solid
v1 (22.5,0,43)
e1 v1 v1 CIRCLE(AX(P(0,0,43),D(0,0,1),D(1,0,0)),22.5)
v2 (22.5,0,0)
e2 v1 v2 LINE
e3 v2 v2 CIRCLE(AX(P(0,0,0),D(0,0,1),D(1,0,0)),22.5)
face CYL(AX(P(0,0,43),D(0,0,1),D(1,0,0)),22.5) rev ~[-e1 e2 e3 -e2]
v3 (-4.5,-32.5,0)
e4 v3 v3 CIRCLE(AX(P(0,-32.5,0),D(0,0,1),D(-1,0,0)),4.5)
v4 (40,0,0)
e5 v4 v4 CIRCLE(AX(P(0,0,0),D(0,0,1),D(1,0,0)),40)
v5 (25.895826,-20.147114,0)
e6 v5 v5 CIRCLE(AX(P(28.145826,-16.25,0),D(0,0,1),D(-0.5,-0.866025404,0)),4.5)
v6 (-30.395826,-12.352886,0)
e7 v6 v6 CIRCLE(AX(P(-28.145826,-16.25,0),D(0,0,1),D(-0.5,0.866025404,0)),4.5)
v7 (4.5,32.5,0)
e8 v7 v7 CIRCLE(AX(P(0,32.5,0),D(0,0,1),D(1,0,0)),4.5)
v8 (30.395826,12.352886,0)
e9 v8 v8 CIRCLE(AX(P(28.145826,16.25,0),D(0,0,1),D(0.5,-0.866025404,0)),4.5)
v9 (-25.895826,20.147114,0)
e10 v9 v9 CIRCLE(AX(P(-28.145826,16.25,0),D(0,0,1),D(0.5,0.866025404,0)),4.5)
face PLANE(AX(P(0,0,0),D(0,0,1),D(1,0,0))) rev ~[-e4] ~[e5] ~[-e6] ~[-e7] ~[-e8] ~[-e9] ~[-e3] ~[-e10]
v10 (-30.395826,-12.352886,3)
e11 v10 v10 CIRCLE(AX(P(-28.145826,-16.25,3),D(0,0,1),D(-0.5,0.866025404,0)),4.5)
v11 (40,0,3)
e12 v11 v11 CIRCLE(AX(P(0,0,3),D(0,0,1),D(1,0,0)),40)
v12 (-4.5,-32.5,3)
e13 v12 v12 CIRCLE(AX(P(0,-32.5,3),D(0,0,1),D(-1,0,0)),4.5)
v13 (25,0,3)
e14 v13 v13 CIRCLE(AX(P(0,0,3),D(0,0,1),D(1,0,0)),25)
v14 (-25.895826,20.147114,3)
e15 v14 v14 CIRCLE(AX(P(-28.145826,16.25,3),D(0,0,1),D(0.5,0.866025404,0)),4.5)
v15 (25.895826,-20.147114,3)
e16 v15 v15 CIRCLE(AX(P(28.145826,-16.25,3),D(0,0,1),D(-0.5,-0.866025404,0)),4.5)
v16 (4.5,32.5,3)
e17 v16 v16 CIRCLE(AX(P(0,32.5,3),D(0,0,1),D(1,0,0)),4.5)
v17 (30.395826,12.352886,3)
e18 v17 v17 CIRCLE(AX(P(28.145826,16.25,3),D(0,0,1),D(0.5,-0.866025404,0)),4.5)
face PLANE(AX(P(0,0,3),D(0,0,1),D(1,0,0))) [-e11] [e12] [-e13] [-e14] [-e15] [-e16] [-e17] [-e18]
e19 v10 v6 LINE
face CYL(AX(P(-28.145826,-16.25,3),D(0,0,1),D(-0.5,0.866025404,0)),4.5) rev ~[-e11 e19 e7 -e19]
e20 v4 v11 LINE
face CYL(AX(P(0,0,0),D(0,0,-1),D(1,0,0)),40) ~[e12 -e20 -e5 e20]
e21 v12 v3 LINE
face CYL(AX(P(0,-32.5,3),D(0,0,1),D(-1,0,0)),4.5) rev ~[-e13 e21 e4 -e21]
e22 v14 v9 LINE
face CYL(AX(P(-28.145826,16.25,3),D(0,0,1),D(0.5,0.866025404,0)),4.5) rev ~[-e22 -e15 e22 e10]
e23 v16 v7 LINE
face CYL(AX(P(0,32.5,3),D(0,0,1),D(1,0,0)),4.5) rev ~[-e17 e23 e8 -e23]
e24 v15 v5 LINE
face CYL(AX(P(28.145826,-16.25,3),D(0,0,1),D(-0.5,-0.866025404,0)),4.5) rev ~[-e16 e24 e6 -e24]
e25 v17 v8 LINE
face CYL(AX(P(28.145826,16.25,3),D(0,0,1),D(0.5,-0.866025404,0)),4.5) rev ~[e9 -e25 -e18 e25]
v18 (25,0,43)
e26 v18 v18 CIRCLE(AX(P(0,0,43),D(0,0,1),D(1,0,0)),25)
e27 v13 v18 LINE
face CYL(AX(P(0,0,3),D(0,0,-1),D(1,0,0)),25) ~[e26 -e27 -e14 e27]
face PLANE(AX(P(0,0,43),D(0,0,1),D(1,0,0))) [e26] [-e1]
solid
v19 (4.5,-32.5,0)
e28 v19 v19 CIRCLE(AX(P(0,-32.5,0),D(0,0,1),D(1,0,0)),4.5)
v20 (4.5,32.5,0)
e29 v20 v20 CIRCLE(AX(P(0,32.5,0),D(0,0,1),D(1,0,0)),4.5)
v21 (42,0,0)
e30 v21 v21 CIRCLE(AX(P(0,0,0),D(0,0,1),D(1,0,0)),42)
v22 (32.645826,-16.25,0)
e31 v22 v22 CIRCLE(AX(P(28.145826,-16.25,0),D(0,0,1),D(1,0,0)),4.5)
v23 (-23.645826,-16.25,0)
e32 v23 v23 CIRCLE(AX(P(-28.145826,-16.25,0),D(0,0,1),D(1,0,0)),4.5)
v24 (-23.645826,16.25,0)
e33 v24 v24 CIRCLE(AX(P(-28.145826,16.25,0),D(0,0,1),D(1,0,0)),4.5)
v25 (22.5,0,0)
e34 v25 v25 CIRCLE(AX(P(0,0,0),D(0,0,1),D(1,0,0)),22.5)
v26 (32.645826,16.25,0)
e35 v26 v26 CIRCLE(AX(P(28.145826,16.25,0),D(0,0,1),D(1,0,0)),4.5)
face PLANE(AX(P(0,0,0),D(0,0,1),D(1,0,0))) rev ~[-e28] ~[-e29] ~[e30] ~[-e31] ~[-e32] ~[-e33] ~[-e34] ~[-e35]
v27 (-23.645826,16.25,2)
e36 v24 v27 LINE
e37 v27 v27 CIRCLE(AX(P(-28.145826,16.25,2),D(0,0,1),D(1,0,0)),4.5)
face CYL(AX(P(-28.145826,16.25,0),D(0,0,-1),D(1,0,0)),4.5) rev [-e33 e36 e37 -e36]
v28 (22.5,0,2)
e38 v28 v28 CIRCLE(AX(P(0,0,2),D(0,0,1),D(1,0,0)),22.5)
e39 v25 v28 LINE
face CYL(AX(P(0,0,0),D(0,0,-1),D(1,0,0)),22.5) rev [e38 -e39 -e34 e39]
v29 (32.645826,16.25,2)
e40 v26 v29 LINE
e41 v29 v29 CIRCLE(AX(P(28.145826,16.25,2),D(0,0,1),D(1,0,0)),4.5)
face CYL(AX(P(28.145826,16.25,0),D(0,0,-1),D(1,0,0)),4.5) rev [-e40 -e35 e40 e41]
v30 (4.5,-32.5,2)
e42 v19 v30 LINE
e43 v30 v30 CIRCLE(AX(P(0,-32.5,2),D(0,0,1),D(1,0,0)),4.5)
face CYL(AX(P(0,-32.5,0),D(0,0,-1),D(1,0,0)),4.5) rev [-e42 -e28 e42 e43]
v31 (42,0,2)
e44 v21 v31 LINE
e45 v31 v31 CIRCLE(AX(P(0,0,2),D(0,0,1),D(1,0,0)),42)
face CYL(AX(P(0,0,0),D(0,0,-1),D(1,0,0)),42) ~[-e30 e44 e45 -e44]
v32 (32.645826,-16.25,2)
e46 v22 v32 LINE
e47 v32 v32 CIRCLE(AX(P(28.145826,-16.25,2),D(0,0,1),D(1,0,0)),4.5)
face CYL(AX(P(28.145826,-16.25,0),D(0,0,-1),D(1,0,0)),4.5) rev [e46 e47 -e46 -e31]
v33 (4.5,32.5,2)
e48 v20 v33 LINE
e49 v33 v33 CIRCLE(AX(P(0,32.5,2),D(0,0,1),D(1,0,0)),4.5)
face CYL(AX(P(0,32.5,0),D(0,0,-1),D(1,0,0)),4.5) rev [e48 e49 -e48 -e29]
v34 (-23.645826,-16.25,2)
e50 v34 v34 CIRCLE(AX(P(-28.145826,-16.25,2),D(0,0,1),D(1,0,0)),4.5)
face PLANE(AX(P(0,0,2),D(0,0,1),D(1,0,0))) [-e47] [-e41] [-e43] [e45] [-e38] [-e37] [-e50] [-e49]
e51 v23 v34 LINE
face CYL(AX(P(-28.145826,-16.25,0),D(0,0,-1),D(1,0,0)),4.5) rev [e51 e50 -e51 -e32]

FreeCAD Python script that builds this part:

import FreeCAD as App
import Part
import Sketcher

doc = App.newDocument("Part")
params = doc.addObject("Spreadsheet::Sheet", "Params")
for row, (alias, value) in enumerate([
    ("sketch1_diameter", "80 mm"),
    ("pad1_length", "3 mm"),
    ("sketch2_diameter", "50 mm"),
    ("pad2_length", "40 mm"),
    ("sketch3_diameter", "45 mm"),
    ("sketch4_diameter", "9 mm"),
    ("sketch5_diameter", "84 mm"),
    ("sketch5_diameter2", "9 mm"),
    ("sketch5_diameter3", "45 mm"),
    ("pad3_length", "2 mm"),
], start=1):
    params.set(f"A{row}", alias)
    params.set(f"B{row}", "=" + value)
    params.setAlias(f"B{row}", alias)

body = doc.addObject("PartDesign::Body", "Body")

sketch1 = doc.addObject("Sketcher::SketchObject", "Sketch")
body.addObject(sketch1)
sketch1.AttachmentSupport = (doc.XY_Plane, [""])
sketch1.MapMode = "FlatFace"
sketch1.addGeometry(Part.Circle(App.Vector(0, 0, 0), App.Vector(0, 0, 1), 40), False)
sketch1.addConstraint([
    Sketcher.Constraint("Coincident", 0, 3, -1, 1),
    Sketcher.Constraint("Diameter", 0, 80.0),
])
sketch1.setExpression("Constraints[1]", "Params.sketch1_diameter")
pad1 = doc.addObject("PartDesign::Pad", "Pad")
body.addObject(pad1)
pad1.Profile = sketch1
pad1.setExpression("Length", "Params.pad1_length")

sketch2 = doc.addObject("Sketcher::SketchObject", "Sketch001")
body.addObject(sketch2)
sketch2.AttachmentSupport = (doc.XY_Plane, [""])
sketch2.MapMode = "FlatFace"
sketch2.AttachmentOffset = App.Placement(App.Vector(0, 0, 3), App.Rotation())
sketch2.addGeometry(Part.Circle(App.Vector(0, 0, 0), App.Vector(0, 0, 1), 25), False)
sketch2.addConstraint([
    Sketcher.Constraint("Coincident", 0, 3, -1, 1),
    Sketcher.Constraint("Diameter", 0, 50.0),
])
sketch2.setExpression("Constraints[1]", "Params.sketch2_diameter")
pad2 = doc.addObject("PartDesign::Pad", "Pad001")
body.addObject(pad2)
pad2.Profile = sketch2
pad2.setExpression("Length", "Params.pad2_length")

sketch3 = doc.addObject("Sketcher::SketchObject", "Sketch002")
body.addObject(sketch3)
sketch3.AttachmentSupport = (doc.XY_Plane, [""])
sketch3.MapMode = "FlatFace"
sketch3.AttachmentOffset = App.Placement(App.Vector(0, 0, 43), App.Rotation())
sketch3.addGeometry(Part.Circle(App.Vector(0, 0, 0), App.Vector(0, 0, 1), 22), False)
sketch3.addConstraint([
    Sketcher.Constraint("Coincident", 0, 3, -1, 1),
    Sketcher.Constraint("Diameter", 0, 45.0),
])
sketch3.setExpression("Constraints[1]", "Params.sketch3_diameter")
pocket1 = doc.addObject("PartDesign::Pocket", "Pocket")
body.addObject(pocket1)
pocket1.Profile = sketch3
pocket1.Type = "ThroughAll"

sketch4 = doc.addObject("Sketcher::SketchObject", "Sketch003")
body.addObject(sketch4)
sketch4.AttachmentSupport = (doc.XY_Plane, [""])
sketch4.MapMode = "FlatFace"
sketch4.AttachmentOffset = App.Placement(App.Vector(0, 0, 3), App.Rotation())
sketch4.addGeometry(Part.Circle(App.Vector(0, 32.5, 0), App.Vector(0, 0, 1), 4.5), False)
sketch4.addConstraint([
    Sketcher.Constraint("PointOnObject", 0, 3, -2),
    Sketcher.Constraint("Diameter", 0, 9.0),
    Sketcher.Constraint("DistanceY", -1, 1, 0, 3, 32.5),
])
sketch4.setExpression("Constraints[1]", "Params.sketch4_diameter")
pocket2 = doc.addObject("PartDesign::Pocket", "Pocket001")
body.addObject(pocket2)
pocket2.Profile = sketch4
pocket2.Type = "ThroughAll"
doc.recompute()

polarpattern = doc.addObject("PartDesign::PolarPattern", "PolarPattern")
body.addObject(polarpattern)
polarpattern.Originals = [pocket2]
polarpattern.Axis = (doc.Z_Axis, [""])
polarpattern.Angle = 360
polarpattern.Occurrences = 6
body.Tip = polarpattern
body2 = doc.addObject("PartDesign::Body", "Body001")

sketch5 = doc.addObject("Sketcher::SketchObject", "Sketch004")
body2.addObject(sketch5)
sketch5.AttachmentSupport = (doc.getObject("XY_Plane001"), [""])
sketch5.MapMode = "FlatFace"
sketch5.addGeometry([
    Part.Circle(App.Vector(0, 0, 0), App.Vector(0, 0, 1), 42),
    Part.Circle(App.Vector(-28.1, -16.2, 0), App.Vector(0, 0, 1), 4.5),
    Part.Circle(App.Vector(0, -32.5, 0), App.Vector(0, 0, 1), 4.5),
    Part.Circle(App.Vector(28.1, -16.2, 0), App.Vector(0, 0, 1), 4.5),
    Part.Circle(App.Vector(-28.1, 16.2, 0), App.Vector(0, 0, 1), 4.5),
    Part.Circle(App.Vector(0, 0, 0), App.Vector(0, 0, 1), 22.5),
    Part.Circle(App.Vector(28.1, 16.2, 0), App.Vector(0, 0, 1), 4.5),
    Part.Circle(App.Vector(0, 32.5, 0), App.Vector(0, 0, 1), 4.5),
], False)
sketch5.addConstraint([
    Sketcher.Constraint("Coincident", 0, 3, -1, 1),
    Sketcher.Constraint("Coincident", 5, 3, -1, 1),
    Sketcher.Constraint("Equal", 1, 2),
    Sketcher.Constraint("Equal", 2, 3),
    Sketcher.Constraint("Equal", 3, 4),
    Sketcher.Constraint("Equal", 4, 6),
    Sketcher.Constraint("Equal", 6, 7),
    Sketcher.Constraint("Symmetric", 3, 3, 4, 3, -1, 1),
    Sketcher.Constraint("Symmetric", 1, 3, 6, 3, -1, 1),
    Sketcher.Constraint("Symmetric", 2, 3, 7, 3, -1, 1),
    Sketcher.Constraint("Symmetric", 1, 3, 3, 3, -2),
    Sketcher.Constraint("PointOnObject", 2, 3, -2),
    Sketcher.Constraint("Diameter", 0, 84.0),
    Sketcher.Constraint("Diameter", 1, 9.0),
    Sketcher.Constraint("Diameter", 5, 45.0),
    Sketcher.Constraint("DistanceY", 2, 3, -1, 1, 32.5),
    Sketcher.Constraint("DistanceY", 1, 3, 4, 3, 32.5),
    Sketcher.Constraint("DistanceX", 1, 3, -1, 1, 28.145826),
])
sketch5.setExpression("Constraints[12]", "Params.sketch5_diameter")
sketch5.setExpression("Constraints[13]", "Params.sketch5_diameter2")
sketch5.setExpression("Constraints[14]", "Params.sketch5_diameter3")
pad3 = doc.addObject("PartDesign::Pad", "Pad002")
body2.addObject(pad3)
pad3.Profile = sketch5
pad3.setExpression("Length", "Params.pad3_length")

doc.recompute()
